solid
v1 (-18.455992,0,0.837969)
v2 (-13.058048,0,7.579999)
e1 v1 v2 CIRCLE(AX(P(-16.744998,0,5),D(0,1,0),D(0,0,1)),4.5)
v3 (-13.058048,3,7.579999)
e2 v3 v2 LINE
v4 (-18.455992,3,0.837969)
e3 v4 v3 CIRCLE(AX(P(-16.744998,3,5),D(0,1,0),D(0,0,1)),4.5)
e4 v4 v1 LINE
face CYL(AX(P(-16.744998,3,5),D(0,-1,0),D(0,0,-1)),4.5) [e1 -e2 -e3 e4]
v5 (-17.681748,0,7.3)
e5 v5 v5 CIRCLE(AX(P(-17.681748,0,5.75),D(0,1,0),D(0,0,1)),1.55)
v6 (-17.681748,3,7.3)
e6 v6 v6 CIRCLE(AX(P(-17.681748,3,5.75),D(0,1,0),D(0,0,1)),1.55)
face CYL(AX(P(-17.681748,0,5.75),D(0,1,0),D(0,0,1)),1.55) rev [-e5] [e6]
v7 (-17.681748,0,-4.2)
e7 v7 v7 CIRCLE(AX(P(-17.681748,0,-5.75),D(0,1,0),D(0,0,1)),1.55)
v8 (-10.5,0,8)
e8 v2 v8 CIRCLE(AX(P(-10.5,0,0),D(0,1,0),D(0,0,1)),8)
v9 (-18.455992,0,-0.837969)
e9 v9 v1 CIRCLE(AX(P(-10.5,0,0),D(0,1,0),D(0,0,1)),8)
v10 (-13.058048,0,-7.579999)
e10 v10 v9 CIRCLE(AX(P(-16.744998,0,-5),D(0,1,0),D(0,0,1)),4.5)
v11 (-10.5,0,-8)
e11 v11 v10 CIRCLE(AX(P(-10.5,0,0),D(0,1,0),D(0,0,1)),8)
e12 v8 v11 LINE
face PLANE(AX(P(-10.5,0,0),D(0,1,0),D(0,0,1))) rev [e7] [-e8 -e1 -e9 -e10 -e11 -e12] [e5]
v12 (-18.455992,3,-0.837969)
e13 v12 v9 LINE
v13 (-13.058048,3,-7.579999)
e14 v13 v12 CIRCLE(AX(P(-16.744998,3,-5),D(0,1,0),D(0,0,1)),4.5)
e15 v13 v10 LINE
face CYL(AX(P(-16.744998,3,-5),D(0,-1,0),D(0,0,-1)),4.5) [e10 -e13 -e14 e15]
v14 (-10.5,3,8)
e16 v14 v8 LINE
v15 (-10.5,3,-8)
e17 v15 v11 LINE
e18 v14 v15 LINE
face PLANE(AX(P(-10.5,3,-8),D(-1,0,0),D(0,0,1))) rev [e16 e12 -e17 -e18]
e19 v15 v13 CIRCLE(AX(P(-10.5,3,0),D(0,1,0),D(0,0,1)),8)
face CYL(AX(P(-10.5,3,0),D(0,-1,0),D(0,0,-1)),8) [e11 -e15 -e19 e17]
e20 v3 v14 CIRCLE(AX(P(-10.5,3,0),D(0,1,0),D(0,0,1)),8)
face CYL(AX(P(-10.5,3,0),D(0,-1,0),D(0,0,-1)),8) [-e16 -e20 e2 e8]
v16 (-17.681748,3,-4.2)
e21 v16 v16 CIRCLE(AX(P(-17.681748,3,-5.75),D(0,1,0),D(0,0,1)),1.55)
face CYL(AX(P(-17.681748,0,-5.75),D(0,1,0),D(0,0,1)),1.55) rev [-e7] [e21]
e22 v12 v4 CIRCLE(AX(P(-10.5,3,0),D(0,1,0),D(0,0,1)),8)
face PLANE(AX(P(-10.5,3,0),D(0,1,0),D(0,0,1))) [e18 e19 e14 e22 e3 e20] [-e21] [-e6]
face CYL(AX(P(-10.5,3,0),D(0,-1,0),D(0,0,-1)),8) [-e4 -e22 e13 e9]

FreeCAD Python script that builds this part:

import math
import FreeCAD as App
import Part
import Sketcher

V = App.Vector

doc = App.newDocument("Part")
body = doc.addObject("PartDesign::Body", "Body")

sketch1 = body.newObject("Sketcher::SketchObject", "Sketch")
sketch1.AttachmentSupport = (doc.getObject("XZ_Plane"), [""])
sketch1.MapMode = "FlatFace"
sketch1.addGeometry(Part.LineSegment(V(-10.5, 8, 0), V(-10.5, -8, 0)), False)
sketch1.addGeometry(Part.ArcOfCircle(Part.Circle(V(-10.5, 0, 0), V(0, 0, 1), 8), math.radians(-108.648167), math.radians(-90)), False)
sketch1.addGeometry(Part.ArcOfCircle(Part.Circle(V(-16.744998, -5, 0), V(0, 0, 1), 4.5), math.radians(112.347365), math.radians(325.01701)), False)
sketch1.addGeometry(Part.ArcOfCircle(Part.Circle(V(-10.5, 0, 0), V(0, 0, 1), 8), math.radians(173.987458), math.radians(186.012542)), False)
sketch1.addGeometry(Part.ArcOfCircle(Part.Circle(V(-16.744998, 5, 0), V(0, 0, 1), 4.5), math.radians(34.98299), math.radians(247.652635)), False)
sketch1.addGeometry(Part.ArcOfCircle(Part.Circle(V(-10.5, 0, 0), V(0, 0, 1), 8), math.radians(90), math.radians(108.648167)), False)
sketch1.addConstraint(Sketcher.Constraint("Coincident", 0, 2, 1, 2))
sketch1.addConstraint(Sketcher.Constraint("Coincident", 1, 1, 2, 2))
sketch1.addConstraint(Sketcher.Constraint("Coincident", 2, 1, 3, 2))
sketch1.addConstraint(Sketcher.Constraint("Coincident", 3, 1, 4, 2))
sketch1.addConstraint(Sketcher.Constraint("Coincident", 4, 1, 5, 2))
sketch1.addConstraint(Sketcher.Constraint("Coincident", 5, 1, 0, 1))
sketch1.addConstraint(Sketcher.Constraint("Vertical", 0))
sketch1.addConstraint(Sketcher.Constraint("Coincident", 3, 3, 1, 3))
sketch1.addConstraint(Sketcher.Constraint("Coincident", 5, 3, 1, 3))
sketch1.addConstraint(Sketcher.Constraint("Equal", 1, 3))
sketch1.addConstraint(Sketcher.Constraint("Equal", 2, 4))
sketch1.addConstraint(Sketcher.Constraint("Equal", 3, 5))
sketch1.addConstraint(Sketcher.Constraint("Symmetric", 2, 3, 4, 3, -1))
sketch1.addConstraint(Sketcher.Constraint("PointOnObject", 1, 3, -1))
sketch1.addConstraint(Sketcher.Constraint("Vertical", 5, 3, 0, 2))
sketch1.addConstraint(Sketcher.Constraint("Radius", 1, 8.0))
sketch1.addConstraint(Sketcher.Constraint("Radius", 2, 4.5))
sketch1.addConstraint(Sketcher.Constraint("DistanceY", 2, 3, -1, 1, 5.0))
sketch1.addConstraint(Sketcher.Constraint("DistanceX", 1, 3, -1, 1, 10.5))
sketch1.addConstraint(Sketcher.Constraint("DistanceY", 1, 1, -1, 1, 7.579999))
pad1 = body.newObject("PartDesign::Pad", "Pad")
pad1.Profile = sketch1
pad1.Length = 3
pad1.Reversed = True

sketch2 = body.newObject("Sketcher::SketchObject", "Sketch001")
sketch2.AttachmentSupport = (doc.getObject("XZ_Plane"), [""])
sketch2.MapMode = "FlatFace"
sketch2.AttachmentOffset = App.Placement(V(0, 0, -3), App.Rotation())
sketch2.addGeometry(Part.Circle(V(-17.681748, -5.75, 0), V(0, 0, 1), 1.55), False)
sketch2.addGeometry(Part.Circle(V(-17.681748, 5.75, 0), V(0, 0, 1), 1.55), False)
sketch2.addConstraint(Sketcher.Constraint("Equal", 0, 1))
sketch2.addConstraint(Sketcher.Constraint("Symmetric", 0, 3, 1, 3, -1))
sketch2.addConstraint(Sketcher.Constraint("Diameter", 0, 3.1))
sketch2.addConstraint(Sketcher.Constraint("DistanceY", 0, 3, 1, 3, 11.5))
sketch2.addConstraint(Sketcher.Constraint("DistanceX", 0, 3, -1, 1, 17.681748))
pocket1 = body.newObject("PartDesign::Pocket", "Pocket")
pocket1.Profile = sketch2
pocket1.Type = "ThroughAll"
pocket1.Reversed = True

doc.recompute()
